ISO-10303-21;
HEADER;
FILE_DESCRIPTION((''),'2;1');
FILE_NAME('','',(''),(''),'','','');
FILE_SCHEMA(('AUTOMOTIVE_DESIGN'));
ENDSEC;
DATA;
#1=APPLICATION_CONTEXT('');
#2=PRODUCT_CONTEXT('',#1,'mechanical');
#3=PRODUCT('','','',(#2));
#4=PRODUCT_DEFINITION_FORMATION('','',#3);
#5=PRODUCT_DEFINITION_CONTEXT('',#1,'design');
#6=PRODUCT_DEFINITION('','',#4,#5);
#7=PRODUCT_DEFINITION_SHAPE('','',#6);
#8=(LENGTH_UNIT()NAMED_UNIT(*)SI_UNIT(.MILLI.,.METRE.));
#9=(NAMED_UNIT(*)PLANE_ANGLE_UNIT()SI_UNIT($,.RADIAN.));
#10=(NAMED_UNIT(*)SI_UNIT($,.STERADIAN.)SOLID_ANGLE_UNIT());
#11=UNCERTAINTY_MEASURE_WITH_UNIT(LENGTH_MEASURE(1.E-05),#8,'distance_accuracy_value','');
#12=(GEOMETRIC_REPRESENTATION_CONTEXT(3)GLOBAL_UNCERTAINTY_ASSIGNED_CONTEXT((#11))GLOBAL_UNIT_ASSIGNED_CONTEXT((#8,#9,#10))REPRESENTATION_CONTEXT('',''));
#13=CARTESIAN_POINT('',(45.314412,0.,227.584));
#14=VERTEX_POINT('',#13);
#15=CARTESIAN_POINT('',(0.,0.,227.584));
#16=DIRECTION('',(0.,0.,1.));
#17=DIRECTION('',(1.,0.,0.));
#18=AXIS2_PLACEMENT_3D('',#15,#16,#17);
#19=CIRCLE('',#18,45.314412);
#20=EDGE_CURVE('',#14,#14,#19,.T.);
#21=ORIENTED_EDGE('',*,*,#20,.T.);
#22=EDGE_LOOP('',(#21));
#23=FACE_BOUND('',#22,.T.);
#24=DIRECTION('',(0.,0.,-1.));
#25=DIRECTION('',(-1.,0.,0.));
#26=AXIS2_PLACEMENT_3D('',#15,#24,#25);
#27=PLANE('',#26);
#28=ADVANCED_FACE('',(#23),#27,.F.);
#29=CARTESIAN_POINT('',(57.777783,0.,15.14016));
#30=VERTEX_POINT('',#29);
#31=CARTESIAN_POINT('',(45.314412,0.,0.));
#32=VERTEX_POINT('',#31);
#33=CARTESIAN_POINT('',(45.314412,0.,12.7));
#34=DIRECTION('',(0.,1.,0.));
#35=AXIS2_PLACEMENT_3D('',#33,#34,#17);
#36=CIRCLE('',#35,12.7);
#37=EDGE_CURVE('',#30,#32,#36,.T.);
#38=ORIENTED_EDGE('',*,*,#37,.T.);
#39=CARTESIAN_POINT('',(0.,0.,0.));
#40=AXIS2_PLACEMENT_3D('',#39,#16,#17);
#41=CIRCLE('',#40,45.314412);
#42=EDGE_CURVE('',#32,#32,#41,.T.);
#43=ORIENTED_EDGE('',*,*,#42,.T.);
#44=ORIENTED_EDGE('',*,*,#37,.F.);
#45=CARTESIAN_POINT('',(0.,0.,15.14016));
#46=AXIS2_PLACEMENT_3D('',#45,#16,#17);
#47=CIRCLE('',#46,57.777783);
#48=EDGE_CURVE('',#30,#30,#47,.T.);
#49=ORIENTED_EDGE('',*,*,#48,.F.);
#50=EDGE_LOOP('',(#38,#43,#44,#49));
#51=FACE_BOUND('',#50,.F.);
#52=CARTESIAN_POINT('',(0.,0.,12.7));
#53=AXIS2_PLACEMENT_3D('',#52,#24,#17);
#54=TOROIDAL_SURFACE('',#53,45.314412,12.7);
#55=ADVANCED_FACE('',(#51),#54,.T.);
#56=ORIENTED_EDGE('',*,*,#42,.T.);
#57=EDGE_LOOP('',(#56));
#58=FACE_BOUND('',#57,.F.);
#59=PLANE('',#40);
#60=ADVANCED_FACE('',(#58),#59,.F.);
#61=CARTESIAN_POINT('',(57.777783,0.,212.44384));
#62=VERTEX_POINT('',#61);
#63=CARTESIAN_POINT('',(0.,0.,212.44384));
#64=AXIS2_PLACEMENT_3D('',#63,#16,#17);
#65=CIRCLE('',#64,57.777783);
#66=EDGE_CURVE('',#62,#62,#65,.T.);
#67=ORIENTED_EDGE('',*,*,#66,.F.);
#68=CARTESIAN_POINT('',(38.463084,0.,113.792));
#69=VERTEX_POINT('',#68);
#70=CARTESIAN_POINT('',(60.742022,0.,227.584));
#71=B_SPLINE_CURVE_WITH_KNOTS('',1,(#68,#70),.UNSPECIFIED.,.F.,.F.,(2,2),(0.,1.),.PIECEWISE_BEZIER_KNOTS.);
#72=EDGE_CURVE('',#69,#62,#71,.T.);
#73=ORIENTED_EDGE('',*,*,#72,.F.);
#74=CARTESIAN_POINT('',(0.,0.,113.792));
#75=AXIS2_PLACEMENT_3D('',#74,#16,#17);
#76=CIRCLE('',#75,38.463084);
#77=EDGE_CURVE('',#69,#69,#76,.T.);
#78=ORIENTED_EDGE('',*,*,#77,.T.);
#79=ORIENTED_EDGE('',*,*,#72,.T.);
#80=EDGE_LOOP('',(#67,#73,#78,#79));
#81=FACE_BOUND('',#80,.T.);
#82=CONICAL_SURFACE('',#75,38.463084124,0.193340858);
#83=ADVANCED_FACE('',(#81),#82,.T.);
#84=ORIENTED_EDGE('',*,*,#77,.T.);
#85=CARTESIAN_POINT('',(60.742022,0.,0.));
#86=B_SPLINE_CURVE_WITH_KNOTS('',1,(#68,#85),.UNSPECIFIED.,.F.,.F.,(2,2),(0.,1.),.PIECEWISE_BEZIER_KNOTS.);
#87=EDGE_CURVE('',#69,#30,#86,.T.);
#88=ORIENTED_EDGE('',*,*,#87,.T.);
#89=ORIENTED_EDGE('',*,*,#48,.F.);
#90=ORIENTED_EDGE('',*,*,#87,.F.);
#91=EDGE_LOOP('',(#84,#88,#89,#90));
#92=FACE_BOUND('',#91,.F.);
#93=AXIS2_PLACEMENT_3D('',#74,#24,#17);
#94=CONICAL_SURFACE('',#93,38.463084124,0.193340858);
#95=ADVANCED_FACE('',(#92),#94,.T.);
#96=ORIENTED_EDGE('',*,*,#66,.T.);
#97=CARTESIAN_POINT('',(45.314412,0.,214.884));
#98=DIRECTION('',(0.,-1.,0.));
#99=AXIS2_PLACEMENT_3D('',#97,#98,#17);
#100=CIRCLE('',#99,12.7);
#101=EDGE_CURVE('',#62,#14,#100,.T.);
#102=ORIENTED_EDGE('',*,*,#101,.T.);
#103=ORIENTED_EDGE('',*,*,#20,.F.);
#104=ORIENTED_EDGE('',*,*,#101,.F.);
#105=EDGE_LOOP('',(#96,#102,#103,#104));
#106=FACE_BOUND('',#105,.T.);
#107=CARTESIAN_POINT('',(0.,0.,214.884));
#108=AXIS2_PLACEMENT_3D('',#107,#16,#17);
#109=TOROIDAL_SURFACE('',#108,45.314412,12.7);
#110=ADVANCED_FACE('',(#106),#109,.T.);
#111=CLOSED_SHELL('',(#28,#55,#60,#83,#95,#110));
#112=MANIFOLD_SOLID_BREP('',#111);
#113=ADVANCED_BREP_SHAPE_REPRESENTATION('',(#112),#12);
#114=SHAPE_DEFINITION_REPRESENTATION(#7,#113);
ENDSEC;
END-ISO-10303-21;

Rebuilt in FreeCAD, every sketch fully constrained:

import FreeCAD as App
import Part
import Sketcher
from FreeCAD import Vector
Q = App.Units.Quantity


def edges_at(feature, points):
    """Names of the edges that pass closest to the given points."""
    edges = feature.Shape.Edges
    near = lambda p: min(range(len(edges)), key=lambda i: edges[i].distToShape(Part.Vertex(*p))[0])
    return sorted({f"Edge{near(p) + 1}" for p in points})

doc = App.newDocument("Part")
params = doc.addObject("Spreadsheet::Sheet", "Params")
for row, (alias, value) in enumerate([
    ("pad1_length", "4.48 in"),
    ("fillet_radius", "0.5 in"),
], start=1):
    params.set(f"A{row}", alias)
    params.set(f"B{row}", "=" + value)
    params.setAlias(f"B{row}", alias)

body = doc.addObject("PartDesign::Body", "Body")

sketch1 = doc.addObject("Sketcher::SketchObject", "Sketch")
body.addObject(sketch1)
sketch1.AttachmentSupport = (doc.XY_Plane, [""])
sketch1.MapMode = "FlatFace"
sketch1.addGeometry(Part.Circle(Vector(0, 0, 0), Vector(0, 0, 1), 38), False)
sketch1.addConstraint(Sketcher.Constraint("Coincident", 0, 3, -1, 1))
sketch1.addConstraint(Sketcher.Constraint("Diameter", 0, Q("76.926168 mm")))
pad1 = doc.addObject("PartDesign::Pad", "Pad")
body.addObject(pad1)
pad1.Profile = sketch1
pad1.setExpression("Length", "Params.pad1_length")

sketch2 = doc.addObject("Sketcher::SketchObject", "Sketch001")
body.addObject(sketch2)
sketch2.AttachmentSupport = (doc.XY_Plane, [""])
sketch2.MapMode = "FlatFace"
sketch2.AttachmentOffset = App.Placement(Vector(0, 0, 4.48 * 25.4), App.Rotation())
sketch2.addGeometry(Part.Circle(Vector(0, 0, 0), Vector(0, 0, 1), 38), False)
sketch2.addConstraint(Sketcher.Constraint("Coincident", 0, 3, -1, 1))
sketch2.addConstraint(Sketcher.Constraint("Diameter", 0, Q("76.926168 mm")))

sketch3 = doc.addObject("Sketcher::SketchObject", "Sketch002")
body.addObject(sketch3)
sketch3.AttachmentSupport = (doc.XY_Plane, [""])
sketch3.MapMode = "FlatFace"
sketch3.addGeometry(Part.Circle(Vector(0, 0, 0), Vector(0, 0, 1), 61), False)
sketch3.addConstraint(Sketcher.Constraint("Coincident", 0, 3, -1, 1))
sketch3.addConstraint(Sketcher.Constraint("Diameter", 0, Q("121.484044 mm")))

additiveloft = doc.addObject("PartDesign::AdditiveLoft", "AdditiveLoft")
body.addObject(additiveloft)
additiveloft.Profile = sketch2
additiveloft.Sections = [sketch3]
body2 = doc.addObject("PartDesign::Body", "Body001")
doc.recompute()

body2.BaseFeature = body
doc.recompute()

mirroring = doc.addObject("Part::Mirroring", "Mirroring")
mirroring.Source = body
mirroring.Base = Vector(0, 0, 113.792)
mirroring.Normal = Vector(0, 0, 1)
body3 = doc.addObject("PartDesign::Body", "Body002")
body3.BaseFeature = mirroring
boolean = doc.addObject("PartDesign::Boolean", "Boolean")
body2.addObject(boolean)
boolean.Type = "Fuse"
boolean.addObjects([body3])
doc.recompute()

fillet = doc.addObject("PartDesign::Fillet", "Fillet")
body2.addObject(fillet)
fillet.Base = (boolean, edges_at(boolean, [(-60.742, 0, 227.584), (-60.742, 0, 0)]))
fillet.setExpression("Radius", "Params.fillet_radius")
mirroring.Visibility = False

doc.recompute()
